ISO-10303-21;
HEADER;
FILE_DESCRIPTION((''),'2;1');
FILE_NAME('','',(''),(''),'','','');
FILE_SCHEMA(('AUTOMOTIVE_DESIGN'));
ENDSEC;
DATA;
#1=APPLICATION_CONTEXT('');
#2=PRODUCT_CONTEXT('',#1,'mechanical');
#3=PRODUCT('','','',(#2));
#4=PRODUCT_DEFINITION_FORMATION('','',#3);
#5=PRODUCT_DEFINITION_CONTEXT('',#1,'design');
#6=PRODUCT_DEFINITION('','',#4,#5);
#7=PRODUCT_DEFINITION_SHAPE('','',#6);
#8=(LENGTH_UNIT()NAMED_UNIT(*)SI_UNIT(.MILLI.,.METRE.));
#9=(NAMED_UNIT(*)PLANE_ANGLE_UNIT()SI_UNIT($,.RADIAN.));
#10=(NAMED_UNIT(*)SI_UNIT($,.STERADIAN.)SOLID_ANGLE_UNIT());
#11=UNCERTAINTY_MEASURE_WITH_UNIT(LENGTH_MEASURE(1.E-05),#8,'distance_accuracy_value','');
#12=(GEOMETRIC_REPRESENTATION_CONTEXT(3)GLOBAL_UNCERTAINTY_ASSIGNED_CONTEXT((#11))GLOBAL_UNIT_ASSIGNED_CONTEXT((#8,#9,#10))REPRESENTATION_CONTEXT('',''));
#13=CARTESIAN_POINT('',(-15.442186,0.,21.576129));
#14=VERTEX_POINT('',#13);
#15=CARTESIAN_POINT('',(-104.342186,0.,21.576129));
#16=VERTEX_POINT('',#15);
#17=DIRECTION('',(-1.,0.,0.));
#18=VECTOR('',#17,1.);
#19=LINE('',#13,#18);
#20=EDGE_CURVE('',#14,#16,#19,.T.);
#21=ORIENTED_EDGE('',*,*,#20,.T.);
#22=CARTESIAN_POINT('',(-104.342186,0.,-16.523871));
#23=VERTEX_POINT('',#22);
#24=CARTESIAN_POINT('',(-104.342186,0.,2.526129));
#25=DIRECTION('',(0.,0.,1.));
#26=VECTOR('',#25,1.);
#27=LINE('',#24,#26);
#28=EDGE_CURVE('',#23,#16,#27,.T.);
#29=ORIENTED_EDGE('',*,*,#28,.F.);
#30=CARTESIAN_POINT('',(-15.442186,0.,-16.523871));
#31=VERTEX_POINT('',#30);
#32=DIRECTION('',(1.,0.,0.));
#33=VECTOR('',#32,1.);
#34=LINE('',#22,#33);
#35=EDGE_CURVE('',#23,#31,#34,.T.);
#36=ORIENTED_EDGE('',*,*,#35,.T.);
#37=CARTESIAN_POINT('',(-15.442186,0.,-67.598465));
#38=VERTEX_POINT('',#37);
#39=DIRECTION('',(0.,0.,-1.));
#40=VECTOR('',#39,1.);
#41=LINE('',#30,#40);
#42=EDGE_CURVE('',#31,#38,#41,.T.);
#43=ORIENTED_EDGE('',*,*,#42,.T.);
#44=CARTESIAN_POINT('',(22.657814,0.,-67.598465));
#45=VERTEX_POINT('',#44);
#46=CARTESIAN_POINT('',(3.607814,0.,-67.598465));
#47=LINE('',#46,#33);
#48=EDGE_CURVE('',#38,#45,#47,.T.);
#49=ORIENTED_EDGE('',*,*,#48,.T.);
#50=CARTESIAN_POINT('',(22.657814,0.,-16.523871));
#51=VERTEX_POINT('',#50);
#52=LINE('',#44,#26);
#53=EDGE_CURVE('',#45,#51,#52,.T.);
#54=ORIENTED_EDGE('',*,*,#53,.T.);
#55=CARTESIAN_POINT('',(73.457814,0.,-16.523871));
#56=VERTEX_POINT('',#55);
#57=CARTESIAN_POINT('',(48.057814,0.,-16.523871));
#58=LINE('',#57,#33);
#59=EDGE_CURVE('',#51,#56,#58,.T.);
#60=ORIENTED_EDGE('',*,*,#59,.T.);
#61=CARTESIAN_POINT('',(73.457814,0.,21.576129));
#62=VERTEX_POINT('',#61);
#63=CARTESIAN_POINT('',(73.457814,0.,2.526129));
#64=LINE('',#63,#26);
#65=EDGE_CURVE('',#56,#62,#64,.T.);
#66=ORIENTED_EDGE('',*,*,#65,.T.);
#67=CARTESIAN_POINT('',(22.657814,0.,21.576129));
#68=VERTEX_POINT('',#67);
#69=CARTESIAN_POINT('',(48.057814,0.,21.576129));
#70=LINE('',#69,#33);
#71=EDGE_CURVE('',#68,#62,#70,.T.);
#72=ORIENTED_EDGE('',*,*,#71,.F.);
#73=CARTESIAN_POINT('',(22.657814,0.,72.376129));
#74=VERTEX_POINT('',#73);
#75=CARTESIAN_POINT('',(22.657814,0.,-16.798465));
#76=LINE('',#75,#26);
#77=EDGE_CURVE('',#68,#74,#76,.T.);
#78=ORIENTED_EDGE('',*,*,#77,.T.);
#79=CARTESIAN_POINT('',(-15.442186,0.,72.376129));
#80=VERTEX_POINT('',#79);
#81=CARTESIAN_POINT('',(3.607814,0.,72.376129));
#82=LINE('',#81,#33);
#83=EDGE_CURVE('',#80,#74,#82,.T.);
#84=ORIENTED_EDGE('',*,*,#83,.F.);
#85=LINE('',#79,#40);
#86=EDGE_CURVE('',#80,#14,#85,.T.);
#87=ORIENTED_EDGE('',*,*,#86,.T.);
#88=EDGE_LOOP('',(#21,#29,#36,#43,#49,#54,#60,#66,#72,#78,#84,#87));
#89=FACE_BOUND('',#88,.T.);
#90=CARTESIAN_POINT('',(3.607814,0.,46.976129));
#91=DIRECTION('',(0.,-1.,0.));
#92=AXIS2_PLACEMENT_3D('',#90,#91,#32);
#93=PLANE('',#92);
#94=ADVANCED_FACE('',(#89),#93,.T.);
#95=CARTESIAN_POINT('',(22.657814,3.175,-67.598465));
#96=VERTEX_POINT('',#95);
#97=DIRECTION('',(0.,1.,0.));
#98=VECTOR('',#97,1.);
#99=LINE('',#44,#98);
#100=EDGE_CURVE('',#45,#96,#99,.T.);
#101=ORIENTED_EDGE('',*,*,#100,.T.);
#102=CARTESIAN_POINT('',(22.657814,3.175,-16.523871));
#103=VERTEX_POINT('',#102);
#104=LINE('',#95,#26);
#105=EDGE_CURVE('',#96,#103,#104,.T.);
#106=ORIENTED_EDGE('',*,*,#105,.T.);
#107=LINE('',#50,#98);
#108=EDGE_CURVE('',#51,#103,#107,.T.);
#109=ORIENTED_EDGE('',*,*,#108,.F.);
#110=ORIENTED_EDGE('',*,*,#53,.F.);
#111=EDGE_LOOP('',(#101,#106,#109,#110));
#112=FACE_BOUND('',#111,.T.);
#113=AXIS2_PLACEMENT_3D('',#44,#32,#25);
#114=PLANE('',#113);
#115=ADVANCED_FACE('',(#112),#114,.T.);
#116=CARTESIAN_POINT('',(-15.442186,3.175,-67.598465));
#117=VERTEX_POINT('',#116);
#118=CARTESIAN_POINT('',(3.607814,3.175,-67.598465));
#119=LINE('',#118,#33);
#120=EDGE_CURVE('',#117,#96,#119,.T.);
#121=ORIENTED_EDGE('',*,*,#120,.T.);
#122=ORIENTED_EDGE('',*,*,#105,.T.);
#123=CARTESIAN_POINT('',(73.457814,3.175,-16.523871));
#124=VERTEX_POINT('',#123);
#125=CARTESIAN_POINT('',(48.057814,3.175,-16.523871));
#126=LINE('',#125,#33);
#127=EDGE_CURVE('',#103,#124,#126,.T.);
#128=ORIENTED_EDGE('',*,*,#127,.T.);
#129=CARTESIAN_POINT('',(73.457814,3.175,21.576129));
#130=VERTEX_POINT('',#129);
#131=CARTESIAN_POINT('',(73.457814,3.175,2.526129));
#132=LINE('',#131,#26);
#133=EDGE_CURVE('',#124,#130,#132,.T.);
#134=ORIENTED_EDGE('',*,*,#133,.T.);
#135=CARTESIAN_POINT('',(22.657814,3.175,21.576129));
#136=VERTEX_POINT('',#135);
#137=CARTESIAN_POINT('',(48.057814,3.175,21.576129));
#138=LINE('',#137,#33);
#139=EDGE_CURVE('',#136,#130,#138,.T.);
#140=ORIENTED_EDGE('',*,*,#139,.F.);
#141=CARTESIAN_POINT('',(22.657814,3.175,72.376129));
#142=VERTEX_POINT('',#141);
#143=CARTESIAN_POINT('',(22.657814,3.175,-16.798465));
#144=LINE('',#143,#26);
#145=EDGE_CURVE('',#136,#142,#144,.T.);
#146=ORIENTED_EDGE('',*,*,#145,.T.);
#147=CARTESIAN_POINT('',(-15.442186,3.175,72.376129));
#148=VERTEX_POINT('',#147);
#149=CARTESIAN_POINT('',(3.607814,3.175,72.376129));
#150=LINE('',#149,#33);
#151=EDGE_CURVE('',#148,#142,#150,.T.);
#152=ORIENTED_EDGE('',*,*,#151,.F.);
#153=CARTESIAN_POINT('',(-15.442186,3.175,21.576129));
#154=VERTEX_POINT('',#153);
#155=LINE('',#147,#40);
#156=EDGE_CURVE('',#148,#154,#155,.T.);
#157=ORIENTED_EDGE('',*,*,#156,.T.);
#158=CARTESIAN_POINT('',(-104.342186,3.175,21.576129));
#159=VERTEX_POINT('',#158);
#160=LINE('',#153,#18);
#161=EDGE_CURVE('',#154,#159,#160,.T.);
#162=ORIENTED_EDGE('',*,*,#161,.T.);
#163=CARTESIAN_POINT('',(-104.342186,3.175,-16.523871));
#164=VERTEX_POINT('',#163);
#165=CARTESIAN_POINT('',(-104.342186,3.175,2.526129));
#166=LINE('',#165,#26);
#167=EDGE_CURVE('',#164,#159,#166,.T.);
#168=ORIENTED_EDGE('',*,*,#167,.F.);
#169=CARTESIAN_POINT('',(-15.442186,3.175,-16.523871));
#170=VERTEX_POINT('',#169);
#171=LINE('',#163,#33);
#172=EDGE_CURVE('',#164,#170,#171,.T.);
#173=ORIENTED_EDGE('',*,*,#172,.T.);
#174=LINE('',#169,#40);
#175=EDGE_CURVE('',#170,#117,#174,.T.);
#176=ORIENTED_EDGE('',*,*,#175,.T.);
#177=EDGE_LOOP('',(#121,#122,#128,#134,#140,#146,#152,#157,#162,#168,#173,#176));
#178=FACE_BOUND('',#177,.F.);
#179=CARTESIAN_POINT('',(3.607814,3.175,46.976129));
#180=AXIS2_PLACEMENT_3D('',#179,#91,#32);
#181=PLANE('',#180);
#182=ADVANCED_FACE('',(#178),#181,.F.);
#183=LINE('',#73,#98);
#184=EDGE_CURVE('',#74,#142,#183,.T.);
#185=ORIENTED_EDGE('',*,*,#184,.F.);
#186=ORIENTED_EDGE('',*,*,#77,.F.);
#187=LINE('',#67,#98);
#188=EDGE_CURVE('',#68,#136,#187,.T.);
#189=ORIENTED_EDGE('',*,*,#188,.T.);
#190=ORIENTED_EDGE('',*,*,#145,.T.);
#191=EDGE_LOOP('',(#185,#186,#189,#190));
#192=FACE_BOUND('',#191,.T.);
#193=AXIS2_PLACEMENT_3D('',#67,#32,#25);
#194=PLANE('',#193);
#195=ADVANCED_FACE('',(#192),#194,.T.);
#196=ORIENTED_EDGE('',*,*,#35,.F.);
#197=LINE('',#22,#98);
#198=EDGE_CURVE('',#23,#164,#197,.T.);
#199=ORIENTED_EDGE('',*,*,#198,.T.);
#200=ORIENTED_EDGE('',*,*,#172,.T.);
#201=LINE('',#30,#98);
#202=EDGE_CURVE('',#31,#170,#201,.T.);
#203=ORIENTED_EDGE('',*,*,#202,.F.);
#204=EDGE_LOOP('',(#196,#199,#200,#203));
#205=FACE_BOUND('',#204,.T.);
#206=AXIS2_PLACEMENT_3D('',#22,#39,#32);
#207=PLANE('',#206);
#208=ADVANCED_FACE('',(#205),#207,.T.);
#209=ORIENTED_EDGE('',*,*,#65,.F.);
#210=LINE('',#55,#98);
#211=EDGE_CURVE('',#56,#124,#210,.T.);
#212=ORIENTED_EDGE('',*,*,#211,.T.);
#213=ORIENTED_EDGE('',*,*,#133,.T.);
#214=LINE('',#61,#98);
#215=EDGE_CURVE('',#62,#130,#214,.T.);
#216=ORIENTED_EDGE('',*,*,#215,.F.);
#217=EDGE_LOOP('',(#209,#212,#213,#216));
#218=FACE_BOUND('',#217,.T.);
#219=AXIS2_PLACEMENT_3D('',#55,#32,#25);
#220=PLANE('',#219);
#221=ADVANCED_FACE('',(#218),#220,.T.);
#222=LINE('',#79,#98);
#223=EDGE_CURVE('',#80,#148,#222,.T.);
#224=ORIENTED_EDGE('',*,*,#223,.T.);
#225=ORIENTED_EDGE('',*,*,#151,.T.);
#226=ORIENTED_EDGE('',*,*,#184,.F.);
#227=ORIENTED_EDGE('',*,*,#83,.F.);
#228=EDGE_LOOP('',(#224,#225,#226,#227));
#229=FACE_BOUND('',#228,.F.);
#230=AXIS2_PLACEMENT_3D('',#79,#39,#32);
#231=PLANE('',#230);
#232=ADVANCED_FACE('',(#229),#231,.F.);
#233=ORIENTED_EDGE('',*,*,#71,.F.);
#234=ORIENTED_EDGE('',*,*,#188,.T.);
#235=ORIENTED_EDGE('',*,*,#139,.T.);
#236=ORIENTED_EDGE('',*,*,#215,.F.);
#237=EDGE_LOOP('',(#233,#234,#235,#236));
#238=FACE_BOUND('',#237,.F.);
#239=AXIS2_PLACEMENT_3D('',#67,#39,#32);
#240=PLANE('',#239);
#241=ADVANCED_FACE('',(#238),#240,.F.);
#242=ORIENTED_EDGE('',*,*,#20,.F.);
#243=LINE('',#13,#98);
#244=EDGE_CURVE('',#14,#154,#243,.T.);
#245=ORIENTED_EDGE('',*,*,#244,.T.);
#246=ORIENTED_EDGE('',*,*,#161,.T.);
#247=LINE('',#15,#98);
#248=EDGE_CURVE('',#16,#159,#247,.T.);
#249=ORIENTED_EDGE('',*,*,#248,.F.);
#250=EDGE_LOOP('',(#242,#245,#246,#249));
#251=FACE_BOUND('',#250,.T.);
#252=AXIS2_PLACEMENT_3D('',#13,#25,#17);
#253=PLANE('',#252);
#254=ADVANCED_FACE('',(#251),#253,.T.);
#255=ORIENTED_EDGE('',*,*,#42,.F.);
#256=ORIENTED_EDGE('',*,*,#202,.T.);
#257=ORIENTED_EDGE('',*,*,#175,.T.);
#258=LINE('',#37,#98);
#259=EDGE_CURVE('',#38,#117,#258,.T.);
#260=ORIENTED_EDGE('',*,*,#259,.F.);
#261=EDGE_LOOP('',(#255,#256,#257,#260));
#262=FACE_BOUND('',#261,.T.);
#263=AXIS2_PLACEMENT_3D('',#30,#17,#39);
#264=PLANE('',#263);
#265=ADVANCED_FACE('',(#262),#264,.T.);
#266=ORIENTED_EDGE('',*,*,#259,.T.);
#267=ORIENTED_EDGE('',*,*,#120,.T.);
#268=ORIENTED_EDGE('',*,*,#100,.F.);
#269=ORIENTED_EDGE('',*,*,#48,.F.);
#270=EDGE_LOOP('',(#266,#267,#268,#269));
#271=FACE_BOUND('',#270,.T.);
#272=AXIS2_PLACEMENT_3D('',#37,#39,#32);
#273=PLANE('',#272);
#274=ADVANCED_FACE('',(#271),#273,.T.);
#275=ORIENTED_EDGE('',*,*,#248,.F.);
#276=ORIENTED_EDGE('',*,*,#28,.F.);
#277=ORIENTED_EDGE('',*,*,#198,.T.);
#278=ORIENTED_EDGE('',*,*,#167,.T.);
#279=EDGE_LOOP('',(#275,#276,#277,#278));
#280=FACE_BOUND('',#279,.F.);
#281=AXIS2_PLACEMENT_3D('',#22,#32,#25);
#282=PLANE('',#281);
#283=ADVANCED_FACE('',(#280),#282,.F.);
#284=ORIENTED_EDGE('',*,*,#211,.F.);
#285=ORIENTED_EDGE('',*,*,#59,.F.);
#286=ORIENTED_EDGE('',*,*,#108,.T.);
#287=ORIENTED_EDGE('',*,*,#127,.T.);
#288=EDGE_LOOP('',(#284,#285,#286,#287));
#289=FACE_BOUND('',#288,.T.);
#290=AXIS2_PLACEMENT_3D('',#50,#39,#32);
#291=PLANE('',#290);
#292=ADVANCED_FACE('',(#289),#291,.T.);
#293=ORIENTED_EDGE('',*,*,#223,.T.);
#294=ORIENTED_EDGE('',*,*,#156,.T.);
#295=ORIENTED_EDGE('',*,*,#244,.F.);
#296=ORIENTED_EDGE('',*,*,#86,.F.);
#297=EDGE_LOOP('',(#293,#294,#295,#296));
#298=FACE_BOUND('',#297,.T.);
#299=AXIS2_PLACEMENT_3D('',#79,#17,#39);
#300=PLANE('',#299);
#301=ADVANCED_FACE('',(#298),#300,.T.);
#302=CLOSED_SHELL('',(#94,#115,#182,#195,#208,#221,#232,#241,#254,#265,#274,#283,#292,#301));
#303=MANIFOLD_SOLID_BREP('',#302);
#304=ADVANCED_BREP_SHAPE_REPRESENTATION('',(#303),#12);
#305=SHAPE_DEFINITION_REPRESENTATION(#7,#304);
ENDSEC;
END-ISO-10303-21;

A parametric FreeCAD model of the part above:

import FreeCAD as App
import Part
import Sketcher

V = App.Vector
Q = App.Units.Quantity

doc = App.newDocument("Part")
body = doc.addObject("PartDesign::Body", "Body")

sketch1 = body.newObject("Sketcher::SketchObject", "Sketch")
sketch1.AttachmentSupport = (doc.getObject("XZ_Plane"), [""])
sketch1.MapMode = "FlatFace"
sketch1.addGeometry(Part.LineSegment(V(-15, 72, 0), V(-15, 22, 0)), False)
sketch1.addGeometry(Part.LineSegment(V(-15, 22, 0), V(-104, 22, 0)), False)
sketch1.addGeometry(Part.LineSegment(V(-104, 22, 0), V(-104, -17, 0)), False)
sketch1.addGeometry(Part.LineSegment(V(-104, -17, 0), V(-15, -17, 0)), False)
sketch1.addGeometry(Part.LineSegment(V(-15, -17, 0), V(-15, -68, 0)), False)
sketch1.addGeometry(Part.LineSegment(V(-15, -68, 0), V(23, -68, 0)), False)
sketch1.addGeometry(Part.LineSegment(V(23, -68, 0), V(23, -17, 0)), False)
sketch1.addGeometry(Part.LineSegment(V(23, -17, 0), V(73, -17, 0)), False)
sketch1.addGeometry(Part.LineSegment(V(73, -17, 0), V(73, 22, 0)), False)
sketch1.addGeometry(Part.LineSegment(V(73, 22, 0), V(23, 22, 0)), False)
sketch1.addGeometry(Part.LineSegment(V(23, 22, 0), V(23, 72, 0)), False)
sketch1.addGeometry(Part.LineSegment(V(23, 72, 0), V(-15, 72, 0)), False)
sketch1.addConstraint(Sketcher.Constraint("Coincident", 0, 2, 1, 1))
sketch1.addConstraint(Sketcher.Constraint("Coincident", 1, 2, 2, 1))
sketch1.addConstraint(Sketcher.Constraint("Coincident", 2, 2, 3, 1))
sketch1.addConstraint(Sketcher.Constraint("Coincident", 3, 2, 4, 1))
sketch1.addConstraint(Sketcher.Constraint("Coincident", 4, 2, 5, 1))
sketch1.addConstraint(Sketcher.Constraint("Coincident", 5, 2, 6, 1))
sketch1.addConstraint(Sketcher.Constraint("Coincident", 6, 2, 7, 1))
sketch1.addConstraint(Sketcher.Constraint("Coincident", 7, 2, 8, 1))
sketch1.addConstraint(Sketcher.Constraint("Coincident", 8, 2, 9, 1))
sketch1.addConstraint(Sketcher.Constraint("Coincident", 9, 2, 10, 1))
sketch1.addConstraint(Sketcher.Constraint("Coincident", 10, 2, 11, 1))
sketch1.addConstraint(Sketcher.Constraint("Coincident", 11, 2, 0, 1))
sketch1.addConstraint(Sketcher.Constraint("Vertical", 0))
sketch1.addConstraint(Sketcher.Constraint("Horizontal", 1))
sketch1.addConstraint(Sketcher.Constraint("Vertical", 2))
sketch1.addConstraint(Sketcher.Constraint("Horizontal", 3))
sketch1.addConstraint(Sketcher.Constraint("Vertical", 4))
sketch1.addConstraint(Sketcher.Constraint("Horizontal", 5))
sketch1.addConstraint(Sketcher.Constraint("Vertical", 6))
sketch1.addConstraint(Sketcher.Constraint("Horizontal", 7))
sketch1.addConstraint(Sketcher.Constraint("Vertical", 8))
sketch1.addConstraint(Sketcher.Constraint("Horizontal", 9))
sketch1.addConstraint(Sketcher.Constraint("Vertical", 10))
sketch1.addConstraint(Sketcher.Constraint("Horizontal", 11))
sketch1.addConstraint(Sketcher.Constraint("Horizontal", 3, 2, 6, 2))
sketch1.addConstraint(Sketcher.Constraint("Horizontal", 1, 2, 8, 2))
sketch1.addConstraint(Sketcher.Constraint("Vertical", 0, 2, 3, 2))
sketch1.addConstraint(Sketcher.Constraint("Vertical", 6, 2, 9, 2))
sketch1.addConstraint(Sketcher.Constraint("Equal", 9, 0))
sketch1.addConstraint(Sketcher.Constraint("Equal", 11, 2))
sketch1.addConstraint(Sketcher.Constraint("DistanceX", 7, 1, 7, 2, Q("2 in")))
sketch1.addConstraint(Sketcher.Constraint("DistanceX", 1, 2, 1, 1, Q("3.5 in")))
sketch1.addConstraint(Sketcher.Constraint("DistanceX", 5, 1, 5, 2, Q("1.5 in")))
sketch1.addConstraint(Sketcher.Constraint("DistanceY", 4, 2, 4, 1, Q("51.074594 mm")))
sketch1.addConstraint(Sketcher.Constraint("DistanceY", -1, 1, 0, 2, Q("21.576129 mm")))
sketch1.addConstraint(Sketcher.Constraint("DistanceX", 0, 2, -1, 1, Q("15.442186 mm")))
pad1 = body.newObject("PartDesign::Pad", "Pad")
pad1.Profile = sketch1
pad1.Length = Q("0.125 in")
pad1.Reversed = True

doc.recompute()
